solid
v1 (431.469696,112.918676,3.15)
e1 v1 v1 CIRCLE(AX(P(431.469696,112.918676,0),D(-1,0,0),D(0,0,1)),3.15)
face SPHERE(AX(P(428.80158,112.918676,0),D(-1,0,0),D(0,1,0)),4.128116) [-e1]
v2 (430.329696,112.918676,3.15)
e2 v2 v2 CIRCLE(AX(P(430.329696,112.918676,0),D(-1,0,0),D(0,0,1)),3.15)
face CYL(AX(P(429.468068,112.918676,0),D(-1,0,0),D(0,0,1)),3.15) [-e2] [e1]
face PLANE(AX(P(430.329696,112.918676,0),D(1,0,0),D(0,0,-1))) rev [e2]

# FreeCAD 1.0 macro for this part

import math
import FreeCAD as App
import Part
import Sketcher

V = App.Vector

doc = App.newDocument("Part")
body = doc.addObject("PartDesign::Body", "Body")

sketch1 = doc.addObject("Sketcher::SketchObject", "Sketch")
body.addObject(sketch1)
sketch1.AttachmentSupport = (doc.XY_Plane, [""])
sketch1.MapMode = "FlatFace"
sketch1.addGeometry(Part.LineSegment(V(430.3, 116.1, 0), V(430.3, 112.9, 0)), False)
sketch1.addGeometry(Part.LineSegment(V(430.3, 112.9, 0), V(432.9, 112.9, 0)), False)
sketch1.addGeometry(Part.ArcOfCircle(Part.Circle(V(428.8, 112.9, 0), V(0, 0, 1), 4.1), math.radians(0), math.radians(50)), False)
sketch1.addGeometry(Part.LineSegment(V(431.5, 116.1, 0), V(430.3, 116.1, 0)), False)
sketch1.addGeometry(Part.LineSegment(V(428.8, 112.9, 0), V(432.9, 112.9, 0)), True)
sketch1.addConstraint(Sketcher.Constraint("Coincident", 0, 2, 1, 1))
sketch1.addConstraint(Sketcher.Constraint("Coincident", 1, 2, 2, 1))
sketch1.addConstraint(Sketcher.Constraint("Coincident", 2, 2, 3, 1))
sketch1.addConstraint(Sketcher.Constraint("Coincident", 3, 2, 0, 1))
sketch1.addConstraint(Sketcher.Constraint("Vertical", 0))
sketch1.addConstraint(Sketcher.Constraint("Horizontal", 1))
sketch1.addConstraint(Sketcher.Constraint("Horizontal", 3))
sketch1.addConstraint(Sketcher.Constraint("Horizontal", 4))
sketch1.addConstraint(Sketcher.Constraint("Coincident", 4, 1, 2, 3))
sketch1.addConstraint(Sketcher.Constraint("Coincident", 4, 2, 1, 2))
sketch1.addConstraint(Sketcher.Constraint("DistanceX", 1, 1, 1, 2, 2.6))
sketch1.addConstraint(Sketcher.Constraint("DistanceX", 3, 2, 3, 1, 1.14))
sketch1.addConstraint(Sketcher.Constraint("DistanceY", 0, 2, 0, 1, 3.15))
sketch1.addConstraint(Sketcher.Constraint("DistanceX", -1, 1, 2, 3, 428.80158))
sketch1.addConstraint(Sketcher.Constraint("DistanceY", -1, 1, 2, 3, 112.918676))
revolution = doc.addObject("PartDesign::Revolution", "Revolution")
body.addObject(revolution)
revolution.Profile = sketch1
revolution.ReferenceAxis = (sketch1, ["Axis0"])
revolution.Angle = 360

doc.recompute()
